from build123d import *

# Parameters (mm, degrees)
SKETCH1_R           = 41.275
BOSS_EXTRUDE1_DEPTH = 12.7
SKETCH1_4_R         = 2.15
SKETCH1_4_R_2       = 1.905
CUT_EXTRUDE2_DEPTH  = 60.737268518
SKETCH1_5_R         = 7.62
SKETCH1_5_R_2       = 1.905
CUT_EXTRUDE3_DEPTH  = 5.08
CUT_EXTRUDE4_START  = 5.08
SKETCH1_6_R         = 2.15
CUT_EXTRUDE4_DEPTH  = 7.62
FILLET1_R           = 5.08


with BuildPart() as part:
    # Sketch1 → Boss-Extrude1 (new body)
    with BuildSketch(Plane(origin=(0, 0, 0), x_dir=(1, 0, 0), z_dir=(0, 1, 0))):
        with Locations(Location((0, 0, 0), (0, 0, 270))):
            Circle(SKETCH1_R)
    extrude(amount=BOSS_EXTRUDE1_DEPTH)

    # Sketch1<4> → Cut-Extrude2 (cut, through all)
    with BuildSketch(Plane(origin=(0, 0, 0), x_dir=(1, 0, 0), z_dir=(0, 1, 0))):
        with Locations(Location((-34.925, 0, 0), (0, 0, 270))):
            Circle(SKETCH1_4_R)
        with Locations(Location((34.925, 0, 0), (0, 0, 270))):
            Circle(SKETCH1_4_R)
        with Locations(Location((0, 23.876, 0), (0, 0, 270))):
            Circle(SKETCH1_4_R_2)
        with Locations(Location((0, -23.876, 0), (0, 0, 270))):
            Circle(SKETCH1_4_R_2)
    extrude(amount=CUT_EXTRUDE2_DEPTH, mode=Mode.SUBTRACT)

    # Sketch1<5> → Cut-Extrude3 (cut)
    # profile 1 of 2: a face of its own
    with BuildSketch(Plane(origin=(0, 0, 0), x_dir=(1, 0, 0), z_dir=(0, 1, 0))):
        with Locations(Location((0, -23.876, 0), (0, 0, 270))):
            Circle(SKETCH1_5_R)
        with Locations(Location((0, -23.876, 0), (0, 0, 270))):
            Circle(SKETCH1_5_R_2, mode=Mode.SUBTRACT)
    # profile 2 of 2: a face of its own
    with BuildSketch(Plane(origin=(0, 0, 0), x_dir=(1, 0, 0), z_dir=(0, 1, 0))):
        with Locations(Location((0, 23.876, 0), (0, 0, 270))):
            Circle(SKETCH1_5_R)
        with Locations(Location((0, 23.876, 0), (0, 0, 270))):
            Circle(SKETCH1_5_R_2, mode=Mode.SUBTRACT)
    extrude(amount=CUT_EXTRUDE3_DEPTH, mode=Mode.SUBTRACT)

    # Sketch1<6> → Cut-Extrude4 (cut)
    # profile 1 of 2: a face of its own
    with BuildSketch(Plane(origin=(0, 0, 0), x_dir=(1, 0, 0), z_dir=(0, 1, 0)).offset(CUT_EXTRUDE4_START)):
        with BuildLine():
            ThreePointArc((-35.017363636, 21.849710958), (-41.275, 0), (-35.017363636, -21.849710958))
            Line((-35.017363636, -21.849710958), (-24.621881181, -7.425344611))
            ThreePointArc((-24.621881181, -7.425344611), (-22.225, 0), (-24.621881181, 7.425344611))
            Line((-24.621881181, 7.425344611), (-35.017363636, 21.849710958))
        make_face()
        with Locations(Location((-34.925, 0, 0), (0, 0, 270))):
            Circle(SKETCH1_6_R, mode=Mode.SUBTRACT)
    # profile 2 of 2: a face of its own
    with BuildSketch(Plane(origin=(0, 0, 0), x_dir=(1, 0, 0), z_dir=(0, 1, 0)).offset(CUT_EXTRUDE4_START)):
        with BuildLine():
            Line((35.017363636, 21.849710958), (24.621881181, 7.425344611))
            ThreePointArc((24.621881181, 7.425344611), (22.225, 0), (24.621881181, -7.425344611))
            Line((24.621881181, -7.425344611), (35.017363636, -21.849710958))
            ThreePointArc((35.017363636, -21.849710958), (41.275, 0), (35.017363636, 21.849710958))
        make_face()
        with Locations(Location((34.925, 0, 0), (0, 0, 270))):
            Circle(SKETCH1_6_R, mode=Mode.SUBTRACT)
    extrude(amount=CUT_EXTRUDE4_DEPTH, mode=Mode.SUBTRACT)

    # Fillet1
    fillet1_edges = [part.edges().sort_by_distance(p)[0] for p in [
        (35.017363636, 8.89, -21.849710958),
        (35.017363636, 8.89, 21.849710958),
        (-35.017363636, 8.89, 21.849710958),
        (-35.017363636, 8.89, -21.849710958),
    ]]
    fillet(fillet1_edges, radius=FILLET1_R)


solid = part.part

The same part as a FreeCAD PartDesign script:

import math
import FreeCAD as App
import Part
import Sketcher
Q = App.Units.Quantity


def edges_at(feature, points):
    """Names of the edges that pass closest to the given points."""
    edges = feature.Shape.Edges
    near = lambda p: min(range(len(edges)), key=lambda i: edges[i].distToShape(Part.Vertex(*p))[0])
    return sorted({f"Edge{near(p) + 1}" for p in points})

doc = App.newDocument("Part")
body = doc.addObject("PartDesign::Body", "Body")

# Sketch on XZ plane
sketch1 = body.newObject("Sketcher::SketchObject", "Sketch")
sketch1.AttachmentSupport = (doc.getObject("XZ_Plane"), [""])
sketch1.MapMode = "FlatFace"
sketch1.addGeometry(Part.Circle(App.Vector(0, 0, 0), App.Vector(0, 0, 1), 41), False)
sketch1.addConstraint([
    Sketcher.Constraint("Coincident", 0, 3, -1, 1),
    Sketcher.Constraint("Diameter", 0, Q("3.25 in")),
])
pad1 = body.newObject("PartDesign::Pad", "Pad")
pad1.Profile = sketch1
pad1.Length = Q("0.5 in")
pad1.Reversed = True

# Sketch on XZ plane
sketch2 = body.newObject("Sketcher::SketchObject", "Sketch001")
sketch2.AttachmentSupport = (doc.getObject("XZ_Plane"), [""])
sketch2.MapMode = "FlatFace"
sketch2.addGeometry([
    Part.Circle(App.Vector(-34.9, 0, 0), App.Vector(0, 0, 1), 2.1),
    Part.Circle(App.Vector(34.9, 0, 0), App.Vector(0, 0, 1), 2.1),
    Part.Circle(App.Vector(0, -23.9, 0), App.Vector(0, 0, 1), 1.9),
    Part.Circle(App.Vector(0, 23.9, 0), App.Vector(0, 0, 1), 1.9),
], False)
sketch2.addConstraint([
    Sketcher.Constraint("Equal", 0, 1),
    Sketcher.Constraint("Equal", 2, 3),
    Sketcher.Constraint("Symmetric", 0, 3, 1, 3, -1, 1),
    Sketcher.Constraint("Symmetric", 2, 3, 3, 3, -1, 1),
    Sketcher.Constraint("PointOnObject", 0, 3, -1),
    Sketcher.Constraint("PointOnObject", 2, 3, -2),
    Sketcher.Constraint("Diameter", 2, Q("0.15 in")),
    Sketcher.Constraint("Diameter", 0, Q("4.3 mm")),
    Sketcher.Constraint("DistanceY", 2, 3, -1, 1, Q("0.94 in")),
    Sketcher.Constraint("DistanceX", 0, 3, 1, 3, Q("2.75 in")),
])
pocket1 = body.newObject("PartDesign::Pocket", "Pocket")
pocket1.Profile = sketch2
pocket1.Type = "ThroughAll"

# Sketch on XZ plane
sketch3 = body.newObject("Sketcher::SketchObject", "Sketch002")
sketch3.AttachmentSupport = (doc.getObject("XZ_Plane"), [""])
sketch3.MapMode = "FlatFace"
sketch3.addGeometry([
    Part.Circle(App.Vector(0, 23.9, 0), App.Vector(0, 0, 1), 7.6),
    Part.Circle(App.Vector(0, 23.9, 0), App.Vector(0, 0, 1), 1.9),
    Part.Circle(App.Vector(0, -23.9, 0), App.Vector(0, 0, 1), 7.6),
    Part.Circle(App.Vector(0, -23.9, 0), App.Vector(0, 0, 1), 1.9),
], False)
sketch3.addConstraint([
    Sketcher.Constraint("Coincident", 1, 3, 0, 3),
    Sketcher.Constraint("Coincident", 3, 3, 2, 3),
    Sketcher.Constraint("Equal", 0, 2),
    Sketcher.Constraint("Equal", 1, 3),
    Sketcher.Constraint("Symmetric", 0, 3, 2, 3, -1, 1),
    Sketcher.Constraint("PointOnObject", 0, 3, -2),
    Sketcher.Constraint("Diameter", 0, Q("0.6 in")),
    Sketcher.Constraint("Diameter", 1, Q("0.15 in")),
    Sketcher.Constraint("DistanceY", -1, 1, 0, 3, Q("0.94 in")),
])
pocket2 = body.newObject("PartDesign::Pocket", "Pocket001")
pocket2.Profile = sketch3
pocket2.Length = Q("0.2 in")

# Sketch on XZ plane
sketch4 = body.newObject("Sketcher::SketchObject", "Sketch003")
sketch4.AttachmentSupport = (doc.getObject("XZ_Plane"), [""])
sketch4.MapMode = "FlatFace"
sketch4.AttachmentOffset = App.Placement(App.Vector(0, 0, -0.2 * 25.4), App.Rotation())
sketch4.addGeometry([
    Part.ArcOfCircle(Part.Circle(App.Vector(0, 0, 0), App.Vector(0, 0, 1), 41.3), math.radians(148), math.radians(212)),  # 0
    Part.LineSegment(App.Vector(-35, 21.8, 0), App.Vector(-24.6, 7.4, 0)),  # 1
    Part.ArcOfCircle(Part.Circle(App.Vector(-34.9, 0, 0), App.Vector(0, 0, 1), 12.7), math.radians(-36), math.radians(36)),  # 2
    Part.LineSegment(App.Vector(-24.6, -7.4, 0), App.Vector(-35, -21.8, 0)),  # 3
    Part.Circle(App.Vector(-34.9, 0, 0), App.Vector(0, 0, 1), 2.1),  # 4
    Part.LineSegment(App.Vector(35, -21.8, 0), App.Vector(24.6, -7.4, 0)),  # 5
    Part.ArcOfCircle(Part.Circle(App.Vector(34.9, 0, 0), App.Vector(0, 0, 1), 12.7), math.radians(144), math.radians(216)),  # 6
    Part.LineSegment(App.Vector(24.6, 7.4, 0), App.Vector(35, 21.8, 0)),  # 7
    Part.ArcOfCircle(Part.Circle(App.Vector(0, 0, 0), App.Vector(0, 0, 1), 41.3), math.radians(-32), math.radians(32)),  # 8
    Part.Circle(App.Vector(34.9, 0, 0), App.Vector(0, 0, 1), 2.1),  # 9
], False)
sketch4.addConstraint([
    Sketcher.Constraint("Coincident", 0, 1, 1, 1),
    Sketcher.Constraint("Tangent", 1, 2, 2, 2),
    Sketcher.Constraint("Tangent", 2, 1, 3, 1),
    Sketcher.Constraint("Coincident", 3, 2, 0, 2),
    Sketcher.Constraint("Tangent", 5, 2, 6, 2),
    Sketcher.Constraint("Tangent", 6, 1, 7, 1),
    Sketcher.Constraint("Coincident", 7, 2, 8, 2),
    Sketcher.Constraint("Coincident", 8, 1, 5, 1),
    Sketcher.Constraint("Coincident", 0, 3, -1, 1),
    Sketcher.Constraint("Coincident", 8, 3, -1, 1),
    Sketcher.Constraint("Coincident", 4, 3, 2, 3),
    Sketcher.Constraint("Coincident", 9, 3, 6, 3),
    Sketcher.Constraint("Equal", 2, 6),
    Sketcher.Constraint("Equal", 0, 8),
    Sketcher.Constraint("Equal", 4, 9),
    Sketcher.Constraint("Symmetric", 2, 3, 6, 3, -1, 1),
    Sketcher.Constraint("Symmetric", 2, 1, 5, 2, -2),
    Sketcher.Constraint("Parallel", 1, 5),
    Sketcher.Constraint("Parallel", 3, 7),
    Sketcher.Constraint("Radius", 2, Q("0.5 in")),
    Sketcher.Constraint("Radius", 0, Q("1.625 in")),
    Sketcher.Constraint("Distance", 1, Q("0.7 in")),
    Sketcher.Constraint("Diameter", 4, Q("4.3 mm")),
    Sketcher.Constraint("DistanceX", 2, 3, 6, 3, Q("2.75 in")),
])
pocket3 = body.newObject("PartDesign::Pocket", "Pocket002")
pocket3.Profile = sketch4
pocket3.Length = Q("0.3 in")
doc.recompute()

fillet = body.newObject("PartDesign::Fillet", "Fillet")
fillet.Base = (pocket3, edges_at(pocket3, [
    (35.017, 8.89, -21.85),
    (35.017, 8.89, 21.85),
    (-35.017, 8.89, 21.85),
    (-35.017, 8.89, -21.85),
]))
fillet.Radius = Q("0.2 in")

doc.recompute()
